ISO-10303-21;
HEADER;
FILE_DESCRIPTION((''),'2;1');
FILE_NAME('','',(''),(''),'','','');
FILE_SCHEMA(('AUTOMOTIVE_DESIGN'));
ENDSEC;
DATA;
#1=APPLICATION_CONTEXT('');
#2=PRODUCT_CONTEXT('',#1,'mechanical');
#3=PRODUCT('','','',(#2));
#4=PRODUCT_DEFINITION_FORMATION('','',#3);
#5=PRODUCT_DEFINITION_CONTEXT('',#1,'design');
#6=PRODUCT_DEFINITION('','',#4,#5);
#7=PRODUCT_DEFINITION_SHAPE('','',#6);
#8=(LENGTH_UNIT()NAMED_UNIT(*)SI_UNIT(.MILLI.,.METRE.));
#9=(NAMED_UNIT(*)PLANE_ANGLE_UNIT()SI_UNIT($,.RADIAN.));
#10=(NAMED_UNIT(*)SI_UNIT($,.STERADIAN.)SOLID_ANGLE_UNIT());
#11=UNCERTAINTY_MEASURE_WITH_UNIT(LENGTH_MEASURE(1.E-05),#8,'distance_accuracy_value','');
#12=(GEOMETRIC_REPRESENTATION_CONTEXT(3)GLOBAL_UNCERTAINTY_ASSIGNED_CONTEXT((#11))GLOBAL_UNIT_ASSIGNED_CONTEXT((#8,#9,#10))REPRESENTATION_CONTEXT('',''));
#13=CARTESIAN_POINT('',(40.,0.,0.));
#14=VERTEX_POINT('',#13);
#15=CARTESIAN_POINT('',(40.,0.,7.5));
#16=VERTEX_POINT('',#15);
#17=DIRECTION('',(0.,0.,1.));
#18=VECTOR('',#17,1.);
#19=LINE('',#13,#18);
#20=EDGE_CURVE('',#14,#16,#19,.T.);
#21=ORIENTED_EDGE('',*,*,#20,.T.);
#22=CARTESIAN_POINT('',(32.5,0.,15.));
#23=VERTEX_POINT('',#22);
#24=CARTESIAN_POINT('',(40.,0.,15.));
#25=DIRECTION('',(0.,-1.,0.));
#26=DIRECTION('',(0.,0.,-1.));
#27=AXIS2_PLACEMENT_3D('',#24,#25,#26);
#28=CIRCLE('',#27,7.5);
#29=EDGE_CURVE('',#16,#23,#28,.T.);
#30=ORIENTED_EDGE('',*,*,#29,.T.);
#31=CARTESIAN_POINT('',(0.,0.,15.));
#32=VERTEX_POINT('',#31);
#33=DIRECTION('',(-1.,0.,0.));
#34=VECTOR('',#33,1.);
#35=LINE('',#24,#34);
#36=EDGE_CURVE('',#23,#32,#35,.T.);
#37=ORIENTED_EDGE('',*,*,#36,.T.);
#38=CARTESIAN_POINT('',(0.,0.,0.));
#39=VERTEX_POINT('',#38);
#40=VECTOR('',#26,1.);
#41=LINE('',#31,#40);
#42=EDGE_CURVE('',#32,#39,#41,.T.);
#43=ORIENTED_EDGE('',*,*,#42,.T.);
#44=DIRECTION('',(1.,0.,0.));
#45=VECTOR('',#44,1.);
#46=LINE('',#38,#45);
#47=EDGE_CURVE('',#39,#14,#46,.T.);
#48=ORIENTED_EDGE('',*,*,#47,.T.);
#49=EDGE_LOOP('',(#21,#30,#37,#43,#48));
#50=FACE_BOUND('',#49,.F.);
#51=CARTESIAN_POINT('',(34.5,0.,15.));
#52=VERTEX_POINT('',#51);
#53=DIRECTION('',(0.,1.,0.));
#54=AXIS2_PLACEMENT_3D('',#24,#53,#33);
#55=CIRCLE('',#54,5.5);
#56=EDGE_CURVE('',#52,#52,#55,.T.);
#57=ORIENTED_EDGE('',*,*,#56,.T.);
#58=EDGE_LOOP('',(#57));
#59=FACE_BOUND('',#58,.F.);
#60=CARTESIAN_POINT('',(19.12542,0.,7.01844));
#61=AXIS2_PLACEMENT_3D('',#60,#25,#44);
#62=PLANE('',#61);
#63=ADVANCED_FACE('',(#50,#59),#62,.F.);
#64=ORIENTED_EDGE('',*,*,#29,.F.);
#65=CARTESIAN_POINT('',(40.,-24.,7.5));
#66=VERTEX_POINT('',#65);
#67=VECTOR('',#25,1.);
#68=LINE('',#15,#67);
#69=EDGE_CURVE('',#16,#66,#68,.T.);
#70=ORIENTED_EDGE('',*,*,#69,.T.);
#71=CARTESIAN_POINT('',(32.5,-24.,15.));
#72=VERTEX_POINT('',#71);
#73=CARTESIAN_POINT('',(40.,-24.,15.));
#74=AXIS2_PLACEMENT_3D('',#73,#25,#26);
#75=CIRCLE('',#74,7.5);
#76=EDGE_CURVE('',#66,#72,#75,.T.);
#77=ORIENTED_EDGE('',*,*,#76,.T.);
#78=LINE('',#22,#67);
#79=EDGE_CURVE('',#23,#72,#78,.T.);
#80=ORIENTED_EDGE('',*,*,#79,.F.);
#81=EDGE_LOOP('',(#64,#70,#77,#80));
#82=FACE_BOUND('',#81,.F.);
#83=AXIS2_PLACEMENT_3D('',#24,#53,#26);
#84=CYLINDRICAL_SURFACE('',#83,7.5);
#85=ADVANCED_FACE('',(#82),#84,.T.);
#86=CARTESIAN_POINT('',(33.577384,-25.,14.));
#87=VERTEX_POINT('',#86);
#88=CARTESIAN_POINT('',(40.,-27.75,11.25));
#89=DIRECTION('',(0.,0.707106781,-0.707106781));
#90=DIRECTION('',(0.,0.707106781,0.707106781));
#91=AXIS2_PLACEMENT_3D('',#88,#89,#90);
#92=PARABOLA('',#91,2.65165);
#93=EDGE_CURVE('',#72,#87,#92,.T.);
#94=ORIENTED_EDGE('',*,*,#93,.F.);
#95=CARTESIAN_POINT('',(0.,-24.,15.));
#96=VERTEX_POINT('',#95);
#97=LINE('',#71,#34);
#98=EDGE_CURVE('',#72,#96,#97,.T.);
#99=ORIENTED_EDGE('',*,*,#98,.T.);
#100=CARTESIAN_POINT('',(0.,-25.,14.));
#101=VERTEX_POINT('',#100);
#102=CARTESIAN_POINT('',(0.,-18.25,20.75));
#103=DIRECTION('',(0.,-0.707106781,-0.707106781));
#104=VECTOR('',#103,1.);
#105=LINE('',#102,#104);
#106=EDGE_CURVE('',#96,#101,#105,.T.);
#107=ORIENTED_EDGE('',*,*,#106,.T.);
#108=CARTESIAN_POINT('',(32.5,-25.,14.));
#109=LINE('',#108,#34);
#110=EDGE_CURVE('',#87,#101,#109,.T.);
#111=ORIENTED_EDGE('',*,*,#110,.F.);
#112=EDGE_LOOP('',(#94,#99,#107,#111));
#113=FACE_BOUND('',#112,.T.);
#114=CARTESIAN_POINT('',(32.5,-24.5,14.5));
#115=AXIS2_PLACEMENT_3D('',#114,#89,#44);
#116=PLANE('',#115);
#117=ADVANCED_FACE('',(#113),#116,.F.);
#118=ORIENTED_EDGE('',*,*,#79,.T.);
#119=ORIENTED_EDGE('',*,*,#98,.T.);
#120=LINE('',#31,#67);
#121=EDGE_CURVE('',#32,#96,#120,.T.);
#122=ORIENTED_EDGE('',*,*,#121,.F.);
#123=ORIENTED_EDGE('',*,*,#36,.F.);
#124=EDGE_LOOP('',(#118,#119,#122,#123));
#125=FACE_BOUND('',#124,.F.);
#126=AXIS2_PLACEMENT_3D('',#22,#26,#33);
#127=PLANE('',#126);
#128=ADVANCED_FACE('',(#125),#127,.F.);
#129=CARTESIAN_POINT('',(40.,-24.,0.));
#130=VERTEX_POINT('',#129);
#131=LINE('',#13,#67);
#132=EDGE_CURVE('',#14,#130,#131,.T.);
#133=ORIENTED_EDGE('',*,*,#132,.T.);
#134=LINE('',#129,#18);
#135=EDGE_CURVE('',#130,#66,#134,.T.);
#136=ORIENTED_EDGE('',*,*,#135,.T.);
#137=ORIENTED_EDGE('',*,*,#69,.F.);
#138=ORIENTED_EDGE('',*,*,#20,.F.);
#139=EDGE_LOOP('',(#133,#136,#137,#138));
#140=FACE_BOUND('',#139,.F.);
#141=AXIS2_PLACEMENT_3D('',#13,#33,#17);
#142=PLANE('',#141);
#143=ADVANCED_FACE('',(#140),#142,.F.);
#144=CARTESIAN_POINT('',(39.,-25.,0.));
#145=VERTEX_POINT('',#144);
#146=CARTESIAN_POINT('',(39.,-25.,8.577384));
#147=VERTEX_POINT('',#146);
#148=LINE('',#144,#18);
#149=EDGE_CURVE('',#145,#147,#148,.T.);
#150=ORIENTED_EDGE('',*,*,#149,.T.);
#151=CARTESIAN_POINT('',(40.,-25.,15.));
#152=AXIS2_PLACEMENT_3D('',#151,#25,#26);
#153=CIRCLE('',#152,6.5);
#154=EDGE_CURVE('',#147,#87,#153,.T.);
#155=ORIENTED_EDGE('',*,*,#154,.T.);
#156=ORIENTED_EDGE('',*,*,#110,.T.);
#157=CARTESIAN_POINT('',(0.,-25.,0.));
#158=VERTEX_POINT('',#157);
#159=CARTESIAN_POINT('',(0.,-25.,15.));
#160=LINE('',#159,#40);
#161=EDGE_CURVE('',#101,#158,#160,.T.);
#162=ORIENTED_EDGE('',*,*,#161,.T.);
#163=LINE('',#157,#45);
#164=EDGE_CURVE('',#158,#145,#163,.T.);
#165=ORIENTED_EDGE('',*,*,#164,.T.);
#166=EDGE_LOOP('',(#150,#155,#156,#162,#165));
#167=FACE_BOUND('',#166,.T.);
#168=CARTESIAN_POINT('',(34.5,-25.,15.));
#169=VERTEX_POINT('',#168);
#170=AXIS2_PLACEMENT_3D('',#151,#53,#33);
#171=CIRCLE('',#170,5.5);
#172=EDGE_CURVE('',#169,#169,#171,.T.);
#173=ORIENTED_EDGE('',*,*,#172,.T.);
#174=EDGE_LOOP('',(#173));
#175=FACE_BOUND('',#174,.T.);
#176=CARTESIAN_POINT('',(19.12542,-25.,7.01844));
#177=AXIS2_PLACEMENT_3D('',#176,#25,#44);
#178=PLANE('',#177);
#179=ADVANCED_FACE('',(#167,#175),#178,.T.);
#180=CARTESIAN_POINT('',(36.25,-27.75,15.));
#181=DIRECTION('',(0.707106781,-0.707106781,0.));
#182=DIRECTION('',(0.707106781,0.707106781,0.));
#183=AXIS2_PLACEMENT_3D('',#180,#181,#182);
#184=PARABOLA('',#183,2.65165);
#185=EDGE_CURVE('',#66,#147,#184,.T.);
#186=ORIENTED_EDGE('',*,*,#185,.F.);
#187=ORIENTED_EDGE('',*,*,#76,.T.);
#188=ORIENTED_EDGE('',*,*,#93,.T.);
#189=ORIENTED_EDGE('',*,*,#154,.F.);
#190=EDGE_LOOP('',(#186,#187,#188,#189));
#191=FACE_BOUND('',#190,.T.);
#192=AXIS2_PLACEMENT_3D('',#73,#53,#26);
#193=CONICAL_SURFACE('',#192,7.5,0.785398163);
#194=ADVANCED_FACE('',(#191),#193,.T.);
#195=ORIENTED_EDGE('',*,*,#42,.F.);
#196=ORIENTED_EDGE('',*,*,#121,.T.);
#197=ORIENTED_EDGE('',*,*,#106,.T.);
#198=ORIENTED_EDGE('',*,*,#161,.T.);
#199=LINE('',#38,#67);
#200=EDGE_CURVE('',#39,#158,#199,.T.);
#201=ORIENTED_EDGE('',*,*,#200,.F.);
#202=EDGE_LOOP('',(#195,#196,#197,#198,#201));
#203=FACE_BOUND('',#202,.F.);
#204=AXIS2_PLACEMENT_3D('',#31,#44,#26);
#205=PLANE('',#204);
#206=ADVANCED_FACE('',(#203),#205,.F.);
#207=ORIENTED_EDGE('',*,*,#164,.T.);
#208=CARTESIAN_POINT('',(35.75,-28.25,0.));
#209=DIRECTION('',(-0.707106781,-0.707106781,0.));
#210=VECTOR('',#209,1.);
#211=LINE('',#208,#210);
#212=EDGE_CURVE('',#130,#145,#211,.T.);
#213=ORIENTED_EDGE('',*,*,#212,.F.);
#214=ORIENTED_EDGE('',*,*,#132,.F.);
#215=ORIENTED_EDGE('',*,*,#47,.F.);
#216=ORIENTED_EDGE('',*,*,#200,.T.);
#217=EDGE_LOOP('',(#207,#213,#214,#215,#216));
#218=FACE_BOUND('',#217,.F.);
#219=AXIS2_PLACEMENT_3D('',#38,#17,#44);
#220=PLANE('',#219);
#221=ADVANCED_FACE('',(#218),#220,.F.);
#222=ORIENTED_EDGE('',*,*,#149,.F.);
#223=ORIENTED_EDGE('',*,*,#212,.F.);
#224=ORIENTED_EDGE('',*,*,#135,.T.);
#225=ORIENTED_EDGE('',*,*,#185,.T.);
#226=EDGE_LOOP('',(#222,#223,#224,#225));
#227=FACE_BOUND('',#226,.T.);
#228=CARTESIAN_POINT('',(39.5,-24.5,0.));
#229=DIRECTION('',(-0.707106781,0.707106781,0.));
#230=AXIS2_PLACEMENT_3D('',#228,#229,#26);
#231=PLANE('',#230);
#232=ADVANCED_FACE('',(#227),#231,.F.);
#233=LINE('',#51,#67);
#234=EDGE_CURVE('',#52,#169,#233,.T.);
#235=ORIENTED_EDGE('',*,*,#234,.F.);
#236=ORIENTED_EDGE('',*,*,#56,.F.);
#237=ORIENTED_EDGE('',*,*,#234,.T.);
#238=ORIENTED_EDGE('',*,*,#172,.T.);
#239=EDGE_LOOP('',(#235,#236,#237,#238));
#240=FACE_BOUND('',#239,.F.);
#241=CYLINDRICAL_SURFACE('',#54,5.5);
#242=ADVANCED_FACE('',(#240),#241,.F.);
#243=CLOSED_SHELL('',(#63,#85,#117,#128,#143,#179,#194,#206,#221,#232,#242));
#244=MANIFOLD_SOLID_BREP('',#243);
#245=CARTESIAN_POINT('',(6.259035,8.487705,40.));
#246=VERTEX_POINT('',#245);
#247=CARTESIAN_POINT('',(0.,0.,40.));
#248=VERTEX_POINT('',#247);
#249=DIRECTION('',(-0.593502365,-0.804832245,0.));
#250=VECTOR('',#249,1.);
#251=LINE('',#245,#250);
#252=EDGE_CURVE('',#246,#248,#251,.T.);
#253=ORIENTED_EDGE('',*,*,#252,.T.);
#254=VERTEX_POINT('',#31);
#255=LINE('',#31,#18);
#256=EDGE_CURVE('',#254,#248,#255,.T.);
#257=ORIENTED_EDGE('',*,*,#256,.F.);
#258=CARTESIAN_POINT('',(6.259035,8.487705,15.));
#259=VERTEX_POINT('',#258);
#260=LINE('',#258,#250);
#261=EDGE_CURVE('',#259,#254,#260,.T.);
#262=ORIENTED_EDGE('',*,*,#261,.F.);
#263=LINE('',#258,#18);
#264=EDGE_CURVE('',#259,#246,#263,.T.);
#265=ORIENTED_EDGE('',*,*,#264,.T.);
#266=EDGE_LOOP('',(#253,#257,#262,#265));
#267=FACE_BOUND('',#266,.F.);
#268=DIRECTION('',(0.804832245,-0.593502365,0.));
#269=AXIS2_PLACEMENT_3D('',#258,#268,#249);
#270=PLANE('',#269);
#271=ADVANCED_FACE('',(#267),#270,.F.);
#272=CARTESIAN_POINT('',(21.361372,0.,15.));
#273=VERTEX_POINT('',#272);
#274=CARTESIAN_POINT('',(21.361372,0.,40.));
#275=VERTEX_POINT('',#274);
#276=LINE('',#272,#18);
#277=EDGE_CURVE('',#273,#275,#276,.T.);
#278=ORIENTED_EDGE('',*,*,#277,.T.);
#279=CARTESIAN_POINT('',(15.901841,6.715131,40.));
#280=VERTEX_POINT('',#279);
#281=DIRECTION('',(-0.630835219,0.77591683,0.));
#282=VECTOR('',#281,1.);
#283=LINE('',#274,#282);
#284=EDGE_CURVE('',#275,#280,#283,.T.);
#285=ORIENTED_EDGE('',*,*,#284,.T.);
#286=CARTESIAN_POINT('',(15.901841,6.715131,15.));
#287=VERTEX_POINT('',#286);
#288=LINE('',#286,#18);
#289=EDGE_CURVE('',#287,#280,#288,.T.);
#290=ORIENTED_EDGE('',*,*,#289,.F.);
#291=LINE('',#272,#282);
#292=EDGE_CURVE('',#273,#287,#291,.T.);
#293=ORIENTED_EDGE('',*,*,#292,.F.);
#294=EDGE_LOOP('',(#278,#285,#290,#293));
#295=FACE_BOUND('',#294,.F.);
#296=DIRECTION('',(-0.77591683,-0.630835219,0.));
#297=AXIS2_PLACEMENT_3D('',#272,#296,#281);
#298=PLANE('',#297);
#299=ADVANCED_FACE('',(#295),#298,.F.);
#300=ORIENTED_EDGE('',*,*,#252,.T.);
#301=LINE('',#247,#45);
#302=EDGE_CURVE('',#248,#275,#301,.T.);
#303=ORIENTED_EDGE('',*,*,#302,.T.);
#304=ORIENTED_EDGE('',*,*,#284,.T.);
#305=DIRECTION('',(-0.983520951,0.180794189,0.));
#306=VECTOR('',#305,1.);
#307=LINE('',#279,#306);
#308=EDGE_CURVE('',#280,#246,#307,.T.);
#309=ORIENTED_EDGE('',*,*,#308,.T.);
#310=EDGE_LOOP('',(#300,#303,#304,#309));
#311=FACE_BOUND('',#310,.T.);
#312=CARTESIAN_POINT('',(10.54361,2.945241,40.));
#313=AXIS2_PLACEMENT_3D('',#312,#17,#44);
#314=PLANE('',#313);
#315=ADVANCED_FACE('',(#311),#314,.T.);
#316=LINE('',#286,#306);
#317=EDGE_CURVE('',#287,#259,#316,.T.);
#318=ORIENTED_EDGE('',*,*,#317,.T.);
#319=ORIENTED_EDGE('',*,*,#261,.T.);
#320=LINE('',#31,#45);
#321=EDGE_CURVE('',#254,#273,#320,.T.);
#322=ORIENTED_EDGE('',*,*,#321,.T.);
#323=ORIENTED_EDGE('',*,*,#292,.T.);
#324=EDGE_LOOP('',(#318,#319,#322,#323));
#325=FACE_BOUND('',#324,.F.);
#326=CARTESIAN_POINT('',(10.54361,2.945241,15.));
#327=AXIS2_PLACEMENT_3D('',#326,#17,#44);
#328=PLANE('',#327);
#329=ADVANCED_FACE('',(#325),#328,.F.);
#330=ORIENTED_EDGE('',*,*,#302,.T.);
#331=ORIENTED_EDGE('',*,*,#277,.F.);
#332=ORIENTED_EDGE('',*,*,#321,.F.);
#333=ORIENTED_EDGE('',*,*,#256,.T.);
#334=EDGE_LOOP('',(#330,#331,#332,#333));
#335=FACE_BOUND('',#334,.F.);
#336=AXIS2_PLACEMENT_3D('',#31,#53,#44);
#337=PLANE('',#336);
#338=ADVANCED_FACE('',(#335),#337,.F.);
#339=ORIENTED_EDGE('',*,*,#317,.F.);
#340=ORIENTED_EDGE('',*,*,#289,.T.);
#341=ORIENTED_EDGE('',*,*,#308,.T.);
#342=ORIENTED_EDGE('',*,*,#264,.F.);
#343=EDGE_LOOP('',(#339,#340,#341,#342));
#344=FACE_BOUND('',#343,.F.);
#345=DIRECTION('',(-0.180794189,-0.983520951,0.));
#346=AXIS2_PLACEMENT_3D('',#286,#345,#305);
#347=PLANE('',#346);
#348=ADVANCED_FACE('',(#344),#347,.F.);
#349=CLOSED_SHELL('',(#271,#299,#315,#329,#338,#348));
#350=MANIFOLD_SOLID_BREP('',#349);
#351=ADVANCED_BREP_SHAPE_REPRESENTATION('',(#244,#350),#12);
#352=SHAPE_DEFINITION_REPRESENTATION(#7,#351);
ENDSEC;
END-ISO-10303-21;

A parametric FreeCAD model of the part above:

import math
import FreeCAD as App
import Part
import Sketcher
Q = App.Units.Quantity


def edges_at(feature, points):
    """Names of the edges that pass closest to the given points."""
    edges = feature.Shape.Edges
    near = lambda p: min(range(len(edges)), key=lambda i: edges[i].distToShape(Part.Vertex(*p))[0])
    return sorted({f"Edge{near(p) + 1}" for p in points})

doc = App.newDocument("Part")
body = doc.addObject("PartDesign::Body", "Body")

sketch1 = body.newObject("Sketcher::SketchObject", "Sketch")
sketch1.AttachmentSupport = (doc.getObject("XZ_Plane"), [""])
sketch1.MapMode = "FlatFace"
sketch1.addGeometry([
    Part.LineSegment(App.Vector(0, 15, 0), App.Vector(0, 0, 0)),
    Part.LineSegment(App.Vector(0, 0, 0), App.Vector(40, 0, 0)),
    Part.LineSegment(App.Vector(40, 0, 0), App.Vector(40, 8, 0)),
    Part.ArcOfCircle(Part.Circle(App.Vector(40, 15, 0), App.Vector(0, 0, 1), 8), math.radians(-90), math.radians(180)),
    Part.LineSegment(App.Vector(32, 15, 0), App.Vector(0, 15, 0)),
], False)
sketch1.addConstraint([
    Sketcher.Constraint("Coincident", 0, 2, 1, 1),
    Sketcher.Constraint("Coincident", 1, 2, 2, 1),
    Sketcher.Constraint("Coincident", 2, 2, 3, 1),
    Sketcher.Constraint("Coincident", 3, 2, 4, 1),
    Sketcher.Constraint("Coincident", 4, 2, 0, 1),
    Sketcher.Constraint("Vertical", 0),
    Sketcher.Constraint("Horizontal", 1),
    Sketcher.Constraint("Vertical", 2),
    Sketcher.Constraint("Horizontal", 4),
    Sketcher.Constraint("Coincident", 0, 2, -1, 1),
    Sketcher.Constraint("Vertical", 3, 3, 1, 2),
    Sketcher.Constraint("Radius", 3, Q("7.5 mm")),
    Sketcher.Constraint("DistanceX", 1, 1, 1, 2, Q("40 mm")),
    Sketcher.Constraint("DistanceY", 0, 2, 0, 1, Q("15 mm")),
    Sketcher.Constraint("DistanceY", 2, 1, 2, 2, Q("7.5 mm")),
])
pad1 = body.newObject("PartDesign::Pad", "Pad")
pad1.Profile = sketch1
pad1.Length = 25
doc.recompute()

chamfer = body.newObject("PartDesign::Chamfer", "Chamfer")
chamfer.Base = (pad1, edges_at(pad1, [(16.25, -25, 15), (45.303, -25, 20.303), (40, -25, 3.75)]))
chamfer.Size = 1

sketch2 = body.newObject("Sketcher::SketchObject", "Sketch001")
sketch2.AttachmentSupport = (doc.getObject("XZ_Plane"), [""])
sketch2.MapMode = "FlatFace"
sketch2.addGeometry(Part.Circle(App.Vector(40, 15, 0), App.Vector(0, 0, 1), 6), False)
sketch2.addConstraint([
    Sketcher.Constraint("Diameter", 0, Q("11 mm")),
    Sketcher.Constraint("DistanceX", -1, 1, 0, 3, Q("40 mm")),
    Sketcher.Constraint("DistanceY", -1, 1, 0, 3, Q("15 mm")),
])
pocket1 = body.newObject("PartDesign::Pocket", "Pocket")
pocket1.Profile = sketch2
pocket1.Type = "ThroughAll"
pocket1.Reversed = True
body2 = doc.addObject("PartDesign::Body", "Body001")

sketch3 = body2.newObject("Sketcher::SketchObject", "Sketch002")
sketch3.AttachmentSupport = (doc.getObject("XY_Plane001"), [""])
sketch3.MapMode = "FlatFace"
sketch3.AttachmentOffset = App.Placement(App.Vector(0, 0, 15), App.Rotation())
sketch3.addGeometry([
    Part.LineSegment(App.Vector(6, 8, 0), App.Vector(0, 0, 0)),
    Part.LineSegment(App.Vector(0, 0, 0), App.Vector(21, 0, 0)),
    Part.LineSegment(App.Vector(21, 0, 0), App.Vector(16, 7, 0)),
    Part.LineSegment(App.Vector(16, 7, 0), App.Vector(6, 8, 0)),
], False)
sketch3.addConstraint([
    Sketcher.Constraint("Coincident", 0, 2, 1, 1),
    Sketcher.Constraint("Coincident", 1, 2, 2, 1),
    Sketcher.Constraint("Coincident", 2, 2, 3, 1),
    Sketcher.Constraint("Coincident", 3, 2, 0, 1),
    Sketcher.Constraint("Horizontal", 1),
    Sketcher.Constraint("Coincident", 0, 2, -1, 1),
    Sketcher.Constraint("DistanceX", 1, 1, 1, 2, Q("21.361372 mm")),
    Sketcher.Constraint("Distance", 0, Q("10.545931 mm")),
    Sketcher.Constraint("DistanceX", -1, 1, 2, 2, Q("15.901841 mm")),
    Sketcher.Constraint("DistanceY", -1, 1, 2, 2, Q("6.715131 mm")),
    Sketcher.Constraint("Distance", 3, Q("9.804373 mm")),
])
pad2 = body2.newObject("PartDesign::Pad", "Pad001")
pad2.Profile = sketch3
pad2.Length = 25

doc.recompute()
